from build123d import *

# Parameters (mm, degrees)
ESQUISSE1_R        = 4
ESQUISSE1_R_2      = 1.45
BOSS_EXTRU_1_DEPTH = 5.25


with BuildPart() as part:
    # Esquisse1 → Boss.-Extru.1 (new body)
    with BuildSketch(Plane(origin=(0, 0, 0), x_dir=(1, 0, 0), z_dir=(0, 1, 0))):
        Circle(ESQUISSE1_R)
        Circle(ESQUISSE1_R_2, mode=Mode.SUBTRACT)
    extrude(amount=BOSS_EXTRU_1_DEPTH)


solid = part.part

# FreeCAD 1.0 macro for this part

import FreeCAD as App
import Part
import Sketcher
from FreeCAD import Vector

doc = App.newDocument("Part")
params = doc.addObject("Spreadsheet::Sheet", "Params")
for row, (alias, value) in enumerate([
    ("sketch1_diameter", "8 mm"),
    ("sketch1_diameter2", "2.9 mm"),
    ("pad1_length", "5.25 mm"),
], start=1):
    params.set(f"A{row}", alias)
    params.set(f"B{row}", "=" + value)
    params.setAlias(f"B{row}", alias)

body = doc.addObject("PartDesign::Body", "Body")

sketch1 = body.newObject("Sketcher::SketchObject", "Sketch")
sketch1.AttachmentSupport = (doc.getObject("XZ_Plane"), [""])
sketch1.MapMode = "FlatFace"
sketch1.addGeometry(Part.Circle(Vector(0, 0, 0), Vector(0, 0, 1), 4), False)
sketch1.addGeometry(Part.Circle(Vector(0, 0, 0), Vector(0, 0, 1), 1.4), False)
sketch1.addConstraint(Sketcher.Constraint("Coincident", 0, 3, -1, 1))
sketch1.addConstraint(Sketcher.Constraint("Coincident", 1, 3, -1, 1))
sketch1.addConstraint(Sketcher.Constraint("Diameter", 0, 8.0))
sketch1.addConstraint(Sketcher.Constraint("Diameter", 1, 2.9))
sketch1.setExpression("Constraints[2]", "Params.sketch1_diameter")
sketch1.setExpression("Constraints[3]", "Params.sketch1_diameter2")
pad1 = body.newObject("PartDesign::Pad", "Pad")
pad1.Profile = sketch1
pad1.setExpression("Length", "Params.pad1_length")
pad1.Reversed = True

doc.recompute()
